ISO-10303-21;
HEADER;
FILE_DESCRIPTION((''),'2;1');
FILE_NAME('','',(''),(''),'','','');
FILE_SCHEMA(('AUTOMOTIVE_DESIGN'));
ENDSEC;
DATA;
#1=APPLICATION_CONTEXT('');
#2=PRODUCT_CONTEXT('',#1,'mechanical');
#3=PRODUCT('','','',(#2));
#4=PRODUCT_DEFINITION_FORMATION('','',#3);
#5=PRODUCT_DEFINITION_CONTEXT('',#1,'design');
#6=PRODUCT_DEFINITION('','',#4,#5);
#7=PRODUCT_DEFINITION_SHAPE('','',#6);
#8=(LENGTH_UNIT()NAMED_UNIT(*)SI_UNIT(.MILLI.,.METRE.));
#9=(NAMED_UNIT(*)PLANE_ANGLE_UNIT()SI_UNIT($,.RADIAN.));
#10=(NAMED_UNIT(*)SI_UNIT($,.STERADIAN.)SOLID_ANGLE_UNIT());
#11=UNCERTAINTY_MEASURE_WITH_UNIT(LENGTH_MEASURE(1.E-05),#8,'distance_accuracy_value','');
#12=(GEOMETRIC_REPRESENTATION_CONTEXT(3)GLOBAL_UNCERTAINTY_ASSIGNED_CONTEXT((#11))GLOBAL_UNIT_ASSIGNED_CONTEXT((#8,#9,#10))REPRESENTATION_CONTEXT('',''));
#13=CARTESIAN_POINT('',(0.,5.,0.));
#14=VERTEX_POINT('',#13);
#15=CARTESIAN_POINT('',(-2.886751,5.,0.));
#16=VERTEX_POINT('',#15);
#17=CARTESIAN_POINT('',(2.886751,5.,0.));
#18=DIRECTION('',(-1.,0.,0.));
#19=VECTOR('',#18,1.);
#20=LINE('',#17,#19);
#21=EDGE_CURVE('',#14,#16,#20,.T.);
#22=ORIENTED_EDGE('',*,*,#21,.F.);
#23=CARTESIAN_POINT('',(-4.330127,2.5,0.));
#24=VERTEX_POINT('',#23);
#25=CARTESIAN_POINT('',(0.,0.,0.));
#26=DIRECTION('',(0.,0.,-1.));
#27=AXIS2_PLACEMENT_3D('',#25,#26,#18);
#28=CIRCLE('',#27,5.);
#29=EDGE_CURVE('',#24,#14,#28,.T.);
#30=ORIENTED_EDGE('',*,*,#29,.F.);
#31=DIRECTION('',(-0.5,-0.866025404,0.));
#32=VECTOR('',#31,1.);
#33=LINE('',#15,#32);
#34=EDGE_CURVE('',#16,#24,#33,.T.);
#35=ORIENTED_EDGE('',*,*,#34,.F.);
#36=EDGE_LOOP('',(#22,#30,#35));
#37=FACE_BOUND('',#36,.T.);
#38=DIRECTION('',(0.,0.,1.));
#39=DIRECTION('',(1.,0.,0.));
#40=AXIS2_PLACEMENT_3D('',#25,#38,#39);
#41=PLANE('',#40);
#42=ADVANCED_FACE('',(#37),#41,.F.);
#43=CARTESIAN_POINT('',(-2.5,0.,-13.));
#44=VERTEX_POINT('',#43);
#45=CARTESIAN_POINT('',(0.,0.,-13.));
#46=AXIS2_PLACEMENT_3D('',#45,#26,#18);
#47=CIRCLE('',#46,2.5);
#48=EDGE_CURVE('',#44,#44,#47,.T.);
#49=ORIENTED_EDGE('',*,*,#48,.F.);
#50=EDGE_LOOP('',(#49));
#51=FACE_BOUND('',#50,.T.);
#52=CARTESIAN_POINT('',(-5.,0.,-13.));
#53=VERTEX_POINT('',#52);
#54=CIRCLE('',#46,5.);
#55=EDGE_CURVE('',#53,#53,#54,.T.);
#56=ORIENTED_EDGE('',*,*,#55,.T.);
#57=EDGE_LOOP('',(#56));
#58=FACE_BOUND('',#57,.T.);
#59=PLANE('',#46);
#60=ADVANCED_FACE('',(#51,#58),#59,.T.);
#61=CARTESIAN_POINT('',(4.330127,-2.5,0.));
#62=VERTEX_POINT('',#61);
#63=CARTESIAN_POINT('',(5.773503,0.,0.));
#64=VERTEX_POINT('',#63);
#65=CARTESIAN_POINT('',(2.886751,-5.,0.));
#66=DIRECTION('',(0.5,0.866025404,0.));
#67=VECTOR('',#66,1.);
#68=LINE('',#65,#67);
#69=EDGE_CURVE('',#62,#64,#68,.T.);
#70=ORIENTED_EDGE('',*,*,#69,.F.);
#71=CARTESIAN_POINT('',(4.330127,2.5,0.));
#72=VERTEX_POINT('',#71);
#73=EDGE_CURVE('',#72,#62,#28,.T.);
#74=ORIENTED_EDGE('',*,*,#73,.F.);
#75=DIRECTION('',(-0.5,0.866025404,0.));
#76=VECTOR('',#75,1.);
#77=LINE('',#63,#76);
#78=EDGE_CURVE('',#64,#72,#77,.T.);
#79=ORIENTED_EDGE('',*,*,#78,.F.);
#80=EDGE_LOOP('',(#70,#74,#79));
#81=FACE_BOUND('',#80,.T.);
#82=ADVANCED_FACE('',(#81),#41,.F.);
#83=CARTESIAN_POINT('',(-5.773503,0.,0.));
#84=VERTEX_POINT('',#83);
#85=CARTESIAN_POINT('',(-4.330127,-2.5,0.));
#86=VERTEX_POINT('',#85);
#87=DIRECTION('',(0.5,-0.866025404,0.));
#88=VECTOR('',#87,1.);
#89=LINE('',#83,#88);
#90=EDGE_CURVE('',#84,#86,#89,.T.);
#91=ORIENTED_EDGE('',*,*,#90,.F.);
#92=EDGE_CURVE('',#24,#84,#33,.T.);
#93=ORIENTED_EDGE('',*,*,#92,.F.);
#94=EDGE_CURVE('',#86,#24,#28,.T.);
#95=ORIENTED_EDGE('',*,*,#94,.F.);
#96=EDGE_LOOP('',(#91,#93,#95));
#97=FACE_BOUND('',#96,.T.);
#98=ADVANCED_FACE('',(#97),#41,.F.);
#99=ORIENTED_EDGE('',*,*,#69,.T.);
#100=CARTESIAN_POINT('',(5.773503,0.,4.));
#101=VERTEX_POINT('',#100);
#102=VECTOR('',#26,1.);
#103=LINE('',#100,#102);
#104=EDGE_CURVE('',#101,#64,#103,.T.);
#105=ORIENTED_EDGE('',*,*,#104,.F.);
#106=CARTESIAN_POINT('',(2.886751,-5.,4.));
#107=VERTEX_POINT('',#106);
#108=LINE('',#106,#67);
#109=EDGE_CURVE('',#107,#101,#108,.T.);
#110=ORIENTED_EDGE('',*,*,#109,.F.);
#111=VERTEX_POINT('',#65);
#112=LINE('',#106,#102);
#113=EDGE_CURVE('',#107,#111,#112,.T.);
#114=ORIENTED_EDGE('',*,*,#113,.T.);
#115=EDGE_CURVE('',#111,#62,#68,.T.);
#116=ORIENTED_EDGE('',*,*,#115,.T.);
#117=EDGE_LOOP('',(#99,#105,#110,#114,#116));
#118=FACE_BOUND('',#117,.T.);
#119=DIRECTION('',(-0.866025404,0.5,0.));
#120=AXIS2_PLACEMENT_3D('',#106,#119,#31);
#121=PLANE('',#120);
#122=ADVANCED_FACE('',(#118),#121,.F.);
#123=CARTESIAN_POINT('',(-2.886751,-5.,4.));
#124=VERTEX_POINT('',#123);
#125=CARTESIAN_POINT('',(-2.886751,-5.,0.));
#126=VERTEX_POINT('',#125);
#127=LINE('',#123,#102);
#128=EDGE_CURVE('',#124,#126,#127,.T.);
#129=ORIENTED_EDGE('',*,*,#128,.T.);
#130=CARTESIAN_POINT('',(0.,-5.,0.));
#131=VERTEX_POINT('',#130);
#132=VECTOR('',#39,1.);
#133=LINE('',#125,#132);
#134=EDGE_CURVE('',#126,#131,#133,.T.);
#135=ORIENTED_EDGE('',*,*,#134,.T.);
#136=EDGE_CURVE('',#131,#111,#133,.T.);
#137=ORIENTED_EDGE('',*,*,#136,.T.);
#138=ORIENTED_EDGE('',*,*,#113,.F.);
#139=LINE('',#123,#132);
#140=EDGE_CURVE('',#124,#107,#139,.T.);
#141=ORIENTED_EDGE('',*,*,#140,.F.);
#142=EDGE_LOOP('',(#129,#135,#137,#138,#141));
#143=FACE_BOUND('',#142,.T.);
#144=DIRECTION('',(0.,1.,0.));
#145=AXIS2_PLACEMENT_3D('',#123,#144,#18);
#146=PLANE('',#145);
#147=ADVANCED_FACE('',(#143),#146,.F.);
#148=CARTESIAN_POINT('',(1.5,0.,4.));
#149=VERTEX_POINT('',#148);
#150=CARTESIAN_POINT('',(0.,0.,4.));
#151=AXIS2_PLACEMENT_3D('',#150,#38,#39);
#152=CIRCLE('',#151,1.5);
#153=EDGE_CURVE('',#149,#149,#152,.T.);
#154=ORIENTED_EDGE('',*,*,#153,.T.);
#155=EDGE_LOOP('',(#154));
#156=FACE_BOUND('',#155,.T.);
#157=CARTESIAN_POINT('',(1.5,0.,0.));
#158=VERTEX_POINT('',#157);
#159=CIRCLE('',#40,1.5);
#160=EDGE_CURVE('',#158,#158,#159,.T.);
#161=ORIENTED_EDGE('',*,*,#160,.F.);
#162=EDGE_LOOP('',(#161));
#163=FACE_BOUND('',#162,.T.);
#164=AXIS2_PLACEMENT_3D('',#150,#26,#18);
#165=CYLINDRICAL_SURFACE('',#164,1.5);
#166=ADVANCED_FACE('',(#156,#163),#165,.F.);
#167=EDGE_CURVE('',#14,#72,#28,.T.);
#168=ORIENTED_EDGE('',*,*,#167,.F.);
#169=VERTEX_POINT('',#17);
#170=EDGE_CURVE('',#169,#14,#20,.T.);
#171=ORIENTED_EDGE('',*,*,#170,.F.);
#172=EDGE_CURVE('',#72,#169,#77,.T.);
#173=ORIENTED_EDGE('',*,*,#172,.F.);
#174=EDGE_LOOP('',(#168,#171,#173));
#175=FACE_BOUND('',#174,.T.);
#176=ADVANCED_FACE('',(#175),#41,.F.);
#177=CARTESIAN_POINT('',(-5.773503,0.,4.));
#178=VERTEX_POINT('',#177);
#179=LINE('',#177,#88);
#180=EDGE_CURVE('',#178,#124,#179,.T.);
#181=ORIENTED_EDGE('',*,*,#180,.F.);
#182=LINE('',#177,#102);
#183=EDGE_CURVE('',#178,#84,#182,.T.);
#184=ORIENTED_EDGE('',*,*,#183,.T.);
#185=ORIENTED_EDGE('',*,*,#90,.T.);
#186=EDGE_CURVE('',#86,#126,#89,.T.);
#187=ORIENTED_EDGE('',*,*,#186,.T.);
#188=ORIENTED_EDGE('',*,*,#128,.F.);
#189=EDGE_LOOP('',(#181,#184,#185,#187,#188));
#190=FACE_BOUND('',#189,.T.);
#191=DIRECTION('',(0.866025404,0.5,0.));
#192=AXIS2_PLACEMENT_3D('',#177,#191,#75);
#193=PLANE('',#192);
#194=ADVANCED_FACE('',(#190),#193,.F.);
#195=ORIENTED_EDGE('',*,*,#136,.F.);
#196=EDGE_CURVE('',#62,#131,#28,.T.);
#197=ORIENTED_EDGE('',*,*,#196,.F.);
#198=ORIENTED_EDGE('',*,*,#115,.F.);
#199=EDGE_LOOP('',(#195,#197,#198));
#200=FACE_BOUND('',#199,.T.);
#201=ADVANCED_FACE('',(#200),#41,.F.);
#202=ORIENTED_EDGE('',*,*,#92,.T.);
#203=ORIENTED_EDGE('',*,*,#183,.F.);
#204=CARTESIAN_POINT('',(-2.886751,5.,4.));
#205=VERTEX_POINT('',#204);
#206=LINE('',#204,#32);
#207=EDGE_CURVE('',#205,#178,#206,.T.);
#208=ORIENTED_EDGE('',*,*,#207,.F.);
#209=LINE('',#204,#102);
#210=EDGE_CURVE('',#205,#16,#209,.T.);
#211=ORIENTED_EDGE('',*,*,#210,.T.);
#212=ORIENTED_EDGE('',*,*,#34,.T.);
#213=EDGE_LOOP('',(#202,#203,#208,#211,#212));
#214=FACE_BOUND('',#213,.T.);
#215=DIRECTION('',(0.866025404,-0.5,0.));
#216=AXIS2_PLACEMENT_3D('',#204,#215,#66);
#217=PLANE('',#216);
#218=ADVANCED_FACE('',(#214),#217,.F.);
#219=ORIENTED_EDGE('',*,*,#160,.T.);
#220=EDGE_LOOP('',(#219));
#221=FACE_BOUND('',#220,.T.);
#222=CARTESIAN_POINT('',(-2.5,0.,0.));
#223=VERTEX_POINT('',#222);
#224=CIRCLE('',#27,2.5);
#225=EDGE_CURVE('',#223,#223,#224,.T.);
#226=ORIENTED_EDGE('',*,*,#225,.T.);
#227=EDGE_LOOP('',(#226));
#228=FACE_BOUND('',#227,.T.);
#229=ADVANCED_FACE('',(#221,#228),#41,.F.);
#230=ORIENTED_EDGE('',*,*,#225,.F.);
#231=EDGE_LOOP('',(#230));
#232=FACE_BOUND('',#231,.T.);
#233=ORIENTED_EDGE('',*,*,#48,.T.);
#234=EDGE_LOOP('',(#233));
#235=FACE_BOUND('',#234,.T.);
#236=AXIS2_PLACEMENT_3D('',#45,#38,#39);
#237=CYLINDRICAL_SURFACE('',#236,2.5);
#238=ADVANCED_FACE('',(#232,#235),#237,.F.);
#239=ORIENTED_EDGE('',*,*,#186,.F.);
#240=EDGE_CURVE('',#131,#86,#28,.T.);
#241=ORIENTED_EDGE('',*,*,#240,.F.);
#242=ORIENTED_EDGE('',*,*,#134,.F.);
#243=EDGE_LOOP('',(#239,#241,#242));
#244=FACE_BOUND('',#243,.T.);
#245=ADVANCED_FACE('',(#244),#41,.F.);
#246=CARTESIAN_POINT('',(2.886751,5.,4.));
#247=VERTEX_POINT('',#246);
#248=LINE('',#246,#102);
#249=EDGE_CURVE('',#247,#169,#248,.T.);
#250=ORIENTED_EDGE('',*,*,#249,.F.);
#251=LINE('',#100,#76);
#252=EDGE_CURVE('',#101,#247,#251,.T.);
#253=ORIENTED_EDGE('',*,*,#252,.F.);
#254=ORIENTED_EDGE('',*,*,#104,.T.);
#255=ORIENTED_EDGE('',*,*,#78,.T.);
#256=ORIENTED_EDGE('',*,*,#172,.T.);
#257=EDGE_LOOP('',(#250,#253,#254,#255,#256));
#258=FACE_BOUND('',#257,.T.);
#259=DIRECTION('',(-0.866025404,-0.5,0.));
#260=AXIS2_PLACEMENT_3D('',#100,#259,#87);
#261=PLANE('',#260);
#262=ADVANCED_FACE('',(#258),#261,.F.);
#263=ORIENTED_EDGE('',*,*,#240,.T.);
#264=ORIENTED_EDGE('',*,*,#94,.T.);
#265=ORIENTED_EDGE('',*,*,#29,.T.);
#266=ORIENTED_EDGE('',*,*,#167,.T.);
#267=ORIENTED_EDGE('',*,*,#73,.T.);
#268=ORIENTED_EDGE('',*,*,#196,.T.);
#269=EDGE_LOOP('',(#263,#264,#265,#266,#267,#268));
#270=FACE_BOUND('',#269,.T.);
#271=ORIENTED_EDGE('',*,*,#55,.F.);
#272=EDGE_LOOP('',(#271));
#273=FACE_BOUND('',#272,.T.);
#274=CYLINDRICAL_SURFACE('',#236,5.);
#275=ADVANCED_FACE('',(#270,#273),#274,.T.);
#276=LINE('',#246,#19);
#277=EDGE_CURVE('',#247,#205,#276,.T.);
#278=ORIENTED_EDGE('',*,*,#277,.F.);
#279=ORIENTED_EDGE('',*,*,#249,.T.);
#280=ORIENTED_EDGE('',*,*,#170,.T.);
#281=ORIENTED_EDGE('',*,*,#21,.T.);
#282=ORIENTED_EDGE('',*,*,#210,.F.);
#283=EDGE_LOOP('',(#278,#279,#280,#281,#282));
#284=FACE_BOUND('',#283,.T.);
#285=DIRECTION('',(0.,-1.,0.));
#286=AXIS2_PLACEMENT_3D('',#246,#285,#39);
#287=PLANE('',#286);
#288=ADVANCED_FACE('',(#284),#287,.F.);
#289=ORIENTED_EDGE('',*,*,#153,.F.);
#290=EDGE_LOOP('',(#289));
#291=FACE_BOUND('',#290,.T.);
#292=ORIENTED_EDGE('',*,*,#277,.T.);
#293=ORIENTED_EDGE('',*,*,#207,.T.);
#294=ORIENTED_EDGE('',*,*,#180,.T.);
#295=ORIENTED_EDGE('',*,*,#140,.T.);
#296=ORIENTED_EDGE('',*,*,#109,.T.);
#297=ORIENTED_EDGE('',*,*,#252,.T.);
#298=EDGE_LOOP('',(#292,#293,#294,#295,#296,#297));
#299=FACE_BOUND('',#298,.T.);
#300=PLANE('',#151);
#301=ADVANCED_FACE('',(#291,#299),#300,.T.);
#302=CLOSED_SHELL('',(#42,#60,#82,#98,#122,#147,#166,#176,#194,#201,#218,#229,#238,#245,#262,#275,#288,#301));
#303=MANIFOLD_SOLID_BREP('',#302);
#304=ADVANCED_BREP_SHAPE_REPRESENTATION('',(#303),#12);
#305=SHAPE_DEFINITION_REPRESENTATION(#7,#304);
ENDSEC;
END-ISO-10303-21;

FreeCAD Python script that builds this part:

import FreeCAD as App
import Part
import Sketcher
from FreeCAD import Vector
Q = App.Units.Quantity


def add_polygon(sketch, points):
    """Adds a closed chain of lines whose ends are joined by coincident constraints."""
    first, n = sketch.GeometryCount, len(points)
    for a, b in zip(points, points[1:] + points[:1]):
        sketch.addGeometry(Part.LineSegment(App.Vector(*a, 0), App.Vector(*b, 0)), False)
    for i in range(n):
        sketch.addConstraint(Sketcher.Constraint("Coincident", first + i, 2, first + (i + 1) % n, 1))

doc = App.newDocument("Part")
body = doc.addObject("PartDesign::Body", "Body")

sketch1 = body.newObject("Sketcher::SketchObject", "Sketch")
sketch1.AttachmentSupport = (doc.getObject("XY_Plane"), [""])
sketch1.MapMode = "FlatFace"
add_polygon(sketch1, [(2.9, 5), (-2.9, 5), (-5.8, 0), (-2.9, -5), (2.9, -5), (5.8, 0)])
sketch1.addGeometry(Part.Circle(Vector(0, 0, 0), Vector(0, 0, 1), 1.5), False)
sketch1.addConstraint([
    Sketcher.Constraint("Horizontal", 0),
    Sketcher.Constraint("Horizontal", 3),
    Sketcher.Constraint("Coincident", 6, 3, -1, 1),
    Sketcher.Constraint("Symmetric", 0, 2, 3, 2, -1, 1),
    Sketcher.Constraint("Symmetric", 1, 2, 4, 2, -1, 1),
    Sketcher.Constraint("PointOnObject", 1, 2, -1),
    Sketcher.Constraint("Parallel", 2, 5),
    Sketcher.Constraint("Vertical", 0, 2, 2, 2),
    Sketcher.Constraint("Diameter", 6, Q("3 mm")),
    Sketcher.Constraint("Angle", 1, Q("-120 deg")),
    Sketcher.Constraint("DistanceY", -1, 1, 0, 2, Q("5 mm")),
    Sketcher.Constraint("DistanceX", 0, 2, 0, 1, Q("5.773503 mm")),
])
pad1 = body.newObject("PartDesign::Pad", "Pad")
pad1.Profile = sketch1
pad1.Length = 4

sketch2 = body.newObject("Sketcher::SketchObject", "Sketch001")
sketch2.AttachmentSupport = (doc.getObject("XY_Plane"), [""])
sketch2.MapMode = "FlatFace"
sketch2.addGeometry([
    Part.Circle(Vector(0, 0, 0), Vector(0, 0, 1), 5),
    Part.Circle(Vector(0, 0, 0), Vector(0, 0, 1), 2.5),
], False)
sketch2.addConstraint([
    Sketcher.Constraint("Coincident", 0, 3, -1, 1),
    Sketcher.Constraint("Coincident", 1, 3, -1, 1),
    Sketcher.Constraint("Diameter", 0, Q("10 mm")),
    Sketcher.Constraint("Diameter", 1, Q("5 mm")),
])
pad2 = body.newObject("PartDesign::Pad", "Pad001")
pad2.Profile = sketch2
pad2.Length = 13
pad2.Reversed = True

doc.recompute()
